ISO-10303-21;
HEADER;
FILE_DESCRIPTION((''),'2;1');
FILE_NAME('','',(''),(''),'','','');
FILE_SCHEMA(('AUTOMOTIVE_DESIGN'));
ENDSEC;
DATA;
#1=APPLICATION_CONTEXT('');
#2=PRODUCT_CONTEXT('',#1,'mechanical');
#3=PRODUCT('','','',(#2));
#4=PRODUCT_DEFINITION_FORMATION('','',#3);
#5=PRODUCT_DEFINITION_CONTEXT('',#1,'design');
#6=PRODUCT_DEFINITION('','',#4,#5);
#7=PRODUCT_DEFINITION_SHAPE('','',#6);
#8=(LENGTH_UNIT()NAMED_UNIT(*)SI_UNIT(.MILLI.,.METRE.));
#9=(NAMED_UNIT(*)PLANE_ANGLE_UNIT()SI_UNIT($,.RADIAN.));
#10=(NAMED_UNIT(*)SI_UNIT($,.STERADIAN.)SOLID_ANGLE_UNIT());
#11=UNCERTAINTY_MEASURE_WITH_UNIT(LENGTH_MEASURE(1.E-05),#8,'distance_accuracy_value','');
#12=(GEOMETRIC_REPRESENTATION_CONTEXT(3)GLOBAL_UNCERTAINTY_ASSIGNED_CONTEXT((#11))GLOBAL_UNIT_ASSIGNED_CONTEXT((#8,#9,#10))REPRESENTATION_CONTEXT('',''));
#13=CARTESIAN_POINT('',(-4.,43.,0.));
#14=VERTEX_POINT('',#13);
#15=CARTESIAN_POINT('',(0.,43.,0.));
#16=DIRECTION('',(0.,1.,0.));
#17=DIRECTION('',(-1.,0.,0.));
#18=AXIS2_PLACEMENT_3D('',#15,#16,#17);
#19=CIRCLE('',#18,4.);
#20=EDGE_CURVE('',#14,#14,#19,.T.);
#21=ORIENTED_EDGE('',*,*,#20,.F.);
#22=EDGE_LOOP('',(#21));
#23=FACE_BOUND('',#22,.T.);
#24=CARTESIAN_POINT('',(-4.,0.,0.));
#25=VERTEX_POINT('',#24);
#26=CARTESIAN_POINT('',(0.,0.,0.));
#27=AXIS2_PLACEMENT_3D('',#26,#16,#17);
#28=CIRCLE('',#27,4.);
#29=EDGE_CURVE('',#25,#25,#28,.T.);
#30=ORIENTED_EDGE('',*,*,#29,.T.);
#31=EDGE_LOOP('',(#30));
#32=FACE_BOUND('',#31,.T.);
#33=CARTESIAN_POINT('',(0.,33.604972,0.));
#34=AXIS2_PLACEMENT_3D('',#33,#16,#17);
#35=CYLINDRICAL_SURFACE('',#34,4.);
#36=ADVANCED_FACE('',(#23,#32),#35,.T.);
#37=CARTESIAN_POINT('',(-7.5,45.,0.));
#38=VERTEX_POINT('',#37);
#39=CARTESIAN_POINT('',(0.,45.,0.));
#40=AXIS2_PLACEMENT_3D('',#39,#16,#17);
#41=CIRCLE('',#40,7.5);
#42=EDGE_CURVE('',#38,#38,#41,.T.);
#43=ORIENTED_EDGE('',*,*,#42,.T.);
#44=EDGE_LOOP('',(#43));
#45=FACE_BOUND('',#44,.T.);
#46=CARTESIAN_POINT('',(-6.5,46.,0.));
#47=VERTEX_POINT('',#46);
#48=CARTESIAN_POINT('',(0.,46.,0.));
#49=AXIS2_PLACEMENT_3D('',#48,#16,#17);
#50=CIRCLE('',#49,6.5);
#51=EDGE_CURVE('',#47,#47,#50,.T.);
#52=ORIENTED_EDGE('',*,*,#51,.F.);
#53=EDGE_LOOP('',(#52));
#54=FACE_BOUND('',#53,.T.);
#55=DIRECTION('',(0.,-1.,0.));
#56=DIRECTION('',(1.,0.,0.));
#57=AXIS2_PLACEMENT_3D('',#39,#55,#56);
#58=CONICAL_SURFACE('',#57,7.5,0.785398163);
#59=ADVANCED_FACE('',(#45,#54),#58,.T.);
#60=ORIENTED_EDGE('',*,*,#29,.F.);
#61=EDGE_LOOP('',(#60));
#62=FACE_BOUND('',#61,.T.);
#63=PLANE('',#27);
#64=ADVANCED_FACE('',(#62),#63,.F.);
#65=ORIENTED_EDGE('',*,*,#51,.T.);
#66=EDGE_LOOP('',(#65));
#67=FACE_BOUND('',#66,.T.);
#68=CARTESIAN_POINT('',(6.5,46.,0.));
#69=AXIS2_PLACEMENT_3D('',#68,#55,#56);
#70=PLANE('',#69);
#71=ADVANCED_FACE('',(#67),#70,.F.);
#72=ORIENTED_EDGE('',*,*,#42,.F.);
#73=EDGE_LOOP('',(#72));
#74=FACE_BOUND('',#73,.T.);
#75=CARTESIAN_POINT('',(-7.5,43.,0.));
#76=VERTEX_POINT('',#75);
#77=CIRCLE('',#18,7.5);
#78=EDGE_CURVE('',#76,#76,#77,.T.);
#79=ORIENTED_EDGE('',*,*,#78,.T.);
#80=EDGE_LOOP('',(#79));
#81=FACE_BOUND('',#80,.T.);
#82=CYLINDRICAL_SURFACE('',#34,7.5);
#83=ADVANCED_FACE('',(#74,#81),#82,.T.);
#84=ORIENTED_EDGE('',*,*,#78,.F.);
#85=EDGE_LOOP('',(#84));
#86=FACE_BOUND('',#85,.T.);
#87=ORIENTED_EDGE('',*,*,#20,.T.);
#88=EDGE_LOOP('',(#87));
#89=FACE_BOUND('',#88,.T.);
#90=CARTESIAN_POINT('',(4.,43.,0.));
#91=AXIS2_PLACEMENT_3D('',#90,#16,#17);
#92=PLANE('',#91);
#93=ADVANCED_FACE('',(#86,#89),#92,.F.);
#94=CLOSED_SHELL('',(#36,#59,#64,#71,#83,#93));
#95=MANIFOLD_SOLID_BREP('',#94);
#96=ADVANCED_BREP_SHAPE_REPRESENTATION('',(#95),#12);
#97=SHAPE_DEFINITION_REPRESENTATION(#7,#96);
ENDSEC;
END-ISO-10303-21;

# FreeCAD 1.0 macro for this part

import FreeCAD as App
import Part
import Sketcher
from FreeCAD import Vector
Q = App.Units.Quantity


def add_polygon(sketch, points):
    """Adds a closed chain of lines whose ends are joined by coincident constraints."""
    first, n = sketch.GeometryCount, len(points)
    for a, b in zip(points, points[1:] + points[:1]):
        sketch.addGeometry(Part.LineSegment(App.Vector(*a, 0), App.Vector(*b, 0)), False)
    for i in range(n):
        sketch.addConstraint(Sketcher.Constraint("Coincident", first + i, 2, first + (i + 1) % n, 1))

doc = App.newDocument("Part")
body = doc.addObject("PartDesign::Body", "Body")

# Sketch on XY plane
sketch1 = body.newObject("Sketcher::SketchObject", "Sketch")
sketch1.AttachmentSupport = (doc.getObject("XY_Plane"), [""])
sketch1.MapMode = "FlatFace"
add_polygon(sketch1, [(0, 0), (4, 0), (4, 43), (7.5, 43), (7.5, 45), (6.5, 46), (0, 46)])  # lines 0-6
sketch1.addConstraint([
    Sketcher.Constraint("Horizontal", 0),
    Sketcher.Constraint("Vertical", 1),
    Sketcher.Constraint("Horizontal", 2),
    Sketcher.Constraint("Vertical", 3),
    Sketcher.Constraint("Horizontal", 5),
    Sketcher.Constraint("Vertical", 6),
    Sketcher.Constraint("Coincident", 6, 2, -1, 1),
    Sketcher.Constraint("DistanceX", 0, 1, 0, 2, 4.0),
    Sketcher.Constraint("DistanceY", 1, 1, 1, 2, 43.0),
    Sketcher.Constraint("DistanceY", 3, 1, 3, 2, 2.0),
    Sketcher.Constraint("DistanceY", 6, 2, 6, 1, 46.0),
    Sketcher.Constraint("Angle", 4, Q("135 deg")),
    Sketcher.Constraint("DistanceX", 2, 1, 2, 2, 3.5),
])
revolution = body.newObject("PartDesign::Revolution", "Revolution")
revolution.Profile = sketch1
revolution.ReferenceAxis = (sketch1, ["V_Axis"])
revolution.Angle = 360

doc.recompute()
